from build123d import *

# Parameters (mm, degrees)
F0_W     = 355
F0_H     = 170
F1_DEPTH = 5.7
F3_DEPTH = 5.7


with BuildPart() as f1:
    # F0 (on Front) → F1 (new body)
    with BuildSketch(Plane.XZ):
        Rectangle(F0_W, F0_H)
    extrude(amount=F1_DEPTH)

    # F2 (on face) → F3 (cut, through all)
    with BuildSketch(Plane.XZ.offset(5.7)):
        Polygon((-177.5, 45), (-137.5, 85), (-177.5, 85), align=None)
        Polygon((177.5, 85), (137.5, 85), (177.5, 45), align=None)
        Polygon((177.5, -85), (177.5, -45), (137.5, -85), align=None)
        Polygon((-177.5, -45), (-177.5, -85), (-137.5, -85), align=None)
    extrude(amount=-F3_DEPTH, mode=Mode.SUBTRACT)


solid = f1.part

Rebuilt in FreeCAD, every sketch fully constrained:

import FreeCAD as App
import Part
import Sketcher

V = App.Vector
Q = App.Units.Quantity


def add_polygon(sketch, points):
    """Adds a closed chain of lines whose ends are joined by coincident constraints."""
    first, n = sketch.GeometryCount, len(points)
    for a, b in zip(points, points[1:] + points[:1]):
        sketch.addGeometry(Part.LineSegment(App.Vector(*a, 0), App.Vector(*b, 0)), False)
    for i in range(n):
        sketch.addConstraint(Sketcher.Constraint("Coincident", first + i, 2, first + (i + 1) % n, 1))

doc = App.newDocument("Part")
body = doc.addObject("PartDesign::Body", "Body")

sketch1 = doc.addObject("Sketcher::SketchObject", "Sketch")
body.addObject(sketch1)
sketch1.AttachmentSupport = (doc.XZ_Plane, [""])
sketch1.MapMode = "FlatFace"
add_polygon(sketch1, [(-178, 85), (-178, -85), (178, -85), (178, 85)])
sketch1.addConstraint(Sketcher.Constraint("Vertical", 0))
sketch1.addConstraint(Sketcher.Constraint("Horizontal", 1))
sketch1.addConstraint(Sketcher.Constraint("Vertical", 2))
sketch1.addConstraint(Sketcher.Constraint("Horizontal", 3))
sketch1.addConstraint(Sketcher.Constraint("Symmetric", 0, 2, 2, 2, -1, 1))
sketch1.addConstraint(Sketcher.Constraint("DistanceX", 1, 1, 1, 2, Q("355 mm")))
sketch1.addConstraint(Sketcher.Constraint("DistanceY", 0, 2, 0, 1, Q("170 mm")))
pad1 = doc.addObject("PartDesign::Pad", "Pad")
body.addObject(pad1)
pad1.Profile = sketch1
pad1.Length = 5.7

sketch2 = doc.addObject("Sketcher::SketchObject", "Sketch001")
body.addObject(sketch2)
sketch2.AttachmentSupport = (doc.XZ_Plane, [""])
sketch2.MapMode = "FlatFace"
sketch2.AttachmentOffset = App.Placement(V(0, 0, 5.7), App.Rotation())
add_polygon(sketch2, [(-178, 45), (-138, 85), (-178, 85)])
add_polygon(sketch2, [(178, 85), (138, 85), (178, 45)])
add_polygon(sketch2, [(178, -85), (178, -45), (138, -85)])
add_polygon(sketch2, [(-178, -45), (-178, -85), (-138, -85)])
sketch2.addConstraint(Sketcher.Constraint("Horizontal", 1))
sketch2.addConstraint(Sketcher.Constraint("Vertical", 2))
sketch2.addConstraint(Sketcher.Constraint("Horizontal", 3))
sketch2.addConstraint(Sketcher.Constraint("Vertical", 5))
sketch2.addConstraint(Sketcher.Constraint("Vertical", 6))
sketch2.addConstraint(Sketcher.Constraint("Horizontal", 8))
sketch2.addConstraint(Sketcher.Constraint("Vertical", 9))
sketch2.addConstraint(Sketcher.Constraint("Horizontal", 10))
sketch2.addConstraint(Sketcher.Constraint("Symmetric", 2, 2, 6, 2, -1, 1))
sketch2.addConstraint(Sketcher.Constraint("Symmetric", 0, 2, 7, 2, -1, 1))
sketch2.addConstraint(Sketcher.Constraint("Symmetric", 5, 2, 9, 2, -1, 1))
sketch2.addConstraint(Sketcher.Constraint("Symmetric", 0, 2, 3, 2, -2))
sketch2.addConstraint(Sketcher.Constraint("Symmetric", 2, 2, 4, 2, -2))
sketch2.addConstraint(Sketcher.Constraint("Perpendicular", 0, 4))
sketch2.addConstraint(Sketcher.Constraint("Perpendicular", 7, 11))
sketch2.addConstraint(Sketcher.Constraint("Horizontal", 6, 2, 11, 2))
sketch2.addConstraint(Sketcher.Constraint("DistanceX", 1, 2, 1, 1, Q("40 mm")))
sketch2.addConstraint(Sketcher.Constraint("DistanceY", -1, 1, 0, 2, Q("85 mm")))
sketch2.addConstraint(Sketcher.Constraint("DistanceX", 0, 2, 3, 2, Q("275 mm")))
pocket1 = doc.addObject("PartDesign::Pocket", "Pocket")
body.addObject(pocket1)
pocket1.Profile = sketch2
pocket1.Type = "ThroughAll"

doc.recompute()
